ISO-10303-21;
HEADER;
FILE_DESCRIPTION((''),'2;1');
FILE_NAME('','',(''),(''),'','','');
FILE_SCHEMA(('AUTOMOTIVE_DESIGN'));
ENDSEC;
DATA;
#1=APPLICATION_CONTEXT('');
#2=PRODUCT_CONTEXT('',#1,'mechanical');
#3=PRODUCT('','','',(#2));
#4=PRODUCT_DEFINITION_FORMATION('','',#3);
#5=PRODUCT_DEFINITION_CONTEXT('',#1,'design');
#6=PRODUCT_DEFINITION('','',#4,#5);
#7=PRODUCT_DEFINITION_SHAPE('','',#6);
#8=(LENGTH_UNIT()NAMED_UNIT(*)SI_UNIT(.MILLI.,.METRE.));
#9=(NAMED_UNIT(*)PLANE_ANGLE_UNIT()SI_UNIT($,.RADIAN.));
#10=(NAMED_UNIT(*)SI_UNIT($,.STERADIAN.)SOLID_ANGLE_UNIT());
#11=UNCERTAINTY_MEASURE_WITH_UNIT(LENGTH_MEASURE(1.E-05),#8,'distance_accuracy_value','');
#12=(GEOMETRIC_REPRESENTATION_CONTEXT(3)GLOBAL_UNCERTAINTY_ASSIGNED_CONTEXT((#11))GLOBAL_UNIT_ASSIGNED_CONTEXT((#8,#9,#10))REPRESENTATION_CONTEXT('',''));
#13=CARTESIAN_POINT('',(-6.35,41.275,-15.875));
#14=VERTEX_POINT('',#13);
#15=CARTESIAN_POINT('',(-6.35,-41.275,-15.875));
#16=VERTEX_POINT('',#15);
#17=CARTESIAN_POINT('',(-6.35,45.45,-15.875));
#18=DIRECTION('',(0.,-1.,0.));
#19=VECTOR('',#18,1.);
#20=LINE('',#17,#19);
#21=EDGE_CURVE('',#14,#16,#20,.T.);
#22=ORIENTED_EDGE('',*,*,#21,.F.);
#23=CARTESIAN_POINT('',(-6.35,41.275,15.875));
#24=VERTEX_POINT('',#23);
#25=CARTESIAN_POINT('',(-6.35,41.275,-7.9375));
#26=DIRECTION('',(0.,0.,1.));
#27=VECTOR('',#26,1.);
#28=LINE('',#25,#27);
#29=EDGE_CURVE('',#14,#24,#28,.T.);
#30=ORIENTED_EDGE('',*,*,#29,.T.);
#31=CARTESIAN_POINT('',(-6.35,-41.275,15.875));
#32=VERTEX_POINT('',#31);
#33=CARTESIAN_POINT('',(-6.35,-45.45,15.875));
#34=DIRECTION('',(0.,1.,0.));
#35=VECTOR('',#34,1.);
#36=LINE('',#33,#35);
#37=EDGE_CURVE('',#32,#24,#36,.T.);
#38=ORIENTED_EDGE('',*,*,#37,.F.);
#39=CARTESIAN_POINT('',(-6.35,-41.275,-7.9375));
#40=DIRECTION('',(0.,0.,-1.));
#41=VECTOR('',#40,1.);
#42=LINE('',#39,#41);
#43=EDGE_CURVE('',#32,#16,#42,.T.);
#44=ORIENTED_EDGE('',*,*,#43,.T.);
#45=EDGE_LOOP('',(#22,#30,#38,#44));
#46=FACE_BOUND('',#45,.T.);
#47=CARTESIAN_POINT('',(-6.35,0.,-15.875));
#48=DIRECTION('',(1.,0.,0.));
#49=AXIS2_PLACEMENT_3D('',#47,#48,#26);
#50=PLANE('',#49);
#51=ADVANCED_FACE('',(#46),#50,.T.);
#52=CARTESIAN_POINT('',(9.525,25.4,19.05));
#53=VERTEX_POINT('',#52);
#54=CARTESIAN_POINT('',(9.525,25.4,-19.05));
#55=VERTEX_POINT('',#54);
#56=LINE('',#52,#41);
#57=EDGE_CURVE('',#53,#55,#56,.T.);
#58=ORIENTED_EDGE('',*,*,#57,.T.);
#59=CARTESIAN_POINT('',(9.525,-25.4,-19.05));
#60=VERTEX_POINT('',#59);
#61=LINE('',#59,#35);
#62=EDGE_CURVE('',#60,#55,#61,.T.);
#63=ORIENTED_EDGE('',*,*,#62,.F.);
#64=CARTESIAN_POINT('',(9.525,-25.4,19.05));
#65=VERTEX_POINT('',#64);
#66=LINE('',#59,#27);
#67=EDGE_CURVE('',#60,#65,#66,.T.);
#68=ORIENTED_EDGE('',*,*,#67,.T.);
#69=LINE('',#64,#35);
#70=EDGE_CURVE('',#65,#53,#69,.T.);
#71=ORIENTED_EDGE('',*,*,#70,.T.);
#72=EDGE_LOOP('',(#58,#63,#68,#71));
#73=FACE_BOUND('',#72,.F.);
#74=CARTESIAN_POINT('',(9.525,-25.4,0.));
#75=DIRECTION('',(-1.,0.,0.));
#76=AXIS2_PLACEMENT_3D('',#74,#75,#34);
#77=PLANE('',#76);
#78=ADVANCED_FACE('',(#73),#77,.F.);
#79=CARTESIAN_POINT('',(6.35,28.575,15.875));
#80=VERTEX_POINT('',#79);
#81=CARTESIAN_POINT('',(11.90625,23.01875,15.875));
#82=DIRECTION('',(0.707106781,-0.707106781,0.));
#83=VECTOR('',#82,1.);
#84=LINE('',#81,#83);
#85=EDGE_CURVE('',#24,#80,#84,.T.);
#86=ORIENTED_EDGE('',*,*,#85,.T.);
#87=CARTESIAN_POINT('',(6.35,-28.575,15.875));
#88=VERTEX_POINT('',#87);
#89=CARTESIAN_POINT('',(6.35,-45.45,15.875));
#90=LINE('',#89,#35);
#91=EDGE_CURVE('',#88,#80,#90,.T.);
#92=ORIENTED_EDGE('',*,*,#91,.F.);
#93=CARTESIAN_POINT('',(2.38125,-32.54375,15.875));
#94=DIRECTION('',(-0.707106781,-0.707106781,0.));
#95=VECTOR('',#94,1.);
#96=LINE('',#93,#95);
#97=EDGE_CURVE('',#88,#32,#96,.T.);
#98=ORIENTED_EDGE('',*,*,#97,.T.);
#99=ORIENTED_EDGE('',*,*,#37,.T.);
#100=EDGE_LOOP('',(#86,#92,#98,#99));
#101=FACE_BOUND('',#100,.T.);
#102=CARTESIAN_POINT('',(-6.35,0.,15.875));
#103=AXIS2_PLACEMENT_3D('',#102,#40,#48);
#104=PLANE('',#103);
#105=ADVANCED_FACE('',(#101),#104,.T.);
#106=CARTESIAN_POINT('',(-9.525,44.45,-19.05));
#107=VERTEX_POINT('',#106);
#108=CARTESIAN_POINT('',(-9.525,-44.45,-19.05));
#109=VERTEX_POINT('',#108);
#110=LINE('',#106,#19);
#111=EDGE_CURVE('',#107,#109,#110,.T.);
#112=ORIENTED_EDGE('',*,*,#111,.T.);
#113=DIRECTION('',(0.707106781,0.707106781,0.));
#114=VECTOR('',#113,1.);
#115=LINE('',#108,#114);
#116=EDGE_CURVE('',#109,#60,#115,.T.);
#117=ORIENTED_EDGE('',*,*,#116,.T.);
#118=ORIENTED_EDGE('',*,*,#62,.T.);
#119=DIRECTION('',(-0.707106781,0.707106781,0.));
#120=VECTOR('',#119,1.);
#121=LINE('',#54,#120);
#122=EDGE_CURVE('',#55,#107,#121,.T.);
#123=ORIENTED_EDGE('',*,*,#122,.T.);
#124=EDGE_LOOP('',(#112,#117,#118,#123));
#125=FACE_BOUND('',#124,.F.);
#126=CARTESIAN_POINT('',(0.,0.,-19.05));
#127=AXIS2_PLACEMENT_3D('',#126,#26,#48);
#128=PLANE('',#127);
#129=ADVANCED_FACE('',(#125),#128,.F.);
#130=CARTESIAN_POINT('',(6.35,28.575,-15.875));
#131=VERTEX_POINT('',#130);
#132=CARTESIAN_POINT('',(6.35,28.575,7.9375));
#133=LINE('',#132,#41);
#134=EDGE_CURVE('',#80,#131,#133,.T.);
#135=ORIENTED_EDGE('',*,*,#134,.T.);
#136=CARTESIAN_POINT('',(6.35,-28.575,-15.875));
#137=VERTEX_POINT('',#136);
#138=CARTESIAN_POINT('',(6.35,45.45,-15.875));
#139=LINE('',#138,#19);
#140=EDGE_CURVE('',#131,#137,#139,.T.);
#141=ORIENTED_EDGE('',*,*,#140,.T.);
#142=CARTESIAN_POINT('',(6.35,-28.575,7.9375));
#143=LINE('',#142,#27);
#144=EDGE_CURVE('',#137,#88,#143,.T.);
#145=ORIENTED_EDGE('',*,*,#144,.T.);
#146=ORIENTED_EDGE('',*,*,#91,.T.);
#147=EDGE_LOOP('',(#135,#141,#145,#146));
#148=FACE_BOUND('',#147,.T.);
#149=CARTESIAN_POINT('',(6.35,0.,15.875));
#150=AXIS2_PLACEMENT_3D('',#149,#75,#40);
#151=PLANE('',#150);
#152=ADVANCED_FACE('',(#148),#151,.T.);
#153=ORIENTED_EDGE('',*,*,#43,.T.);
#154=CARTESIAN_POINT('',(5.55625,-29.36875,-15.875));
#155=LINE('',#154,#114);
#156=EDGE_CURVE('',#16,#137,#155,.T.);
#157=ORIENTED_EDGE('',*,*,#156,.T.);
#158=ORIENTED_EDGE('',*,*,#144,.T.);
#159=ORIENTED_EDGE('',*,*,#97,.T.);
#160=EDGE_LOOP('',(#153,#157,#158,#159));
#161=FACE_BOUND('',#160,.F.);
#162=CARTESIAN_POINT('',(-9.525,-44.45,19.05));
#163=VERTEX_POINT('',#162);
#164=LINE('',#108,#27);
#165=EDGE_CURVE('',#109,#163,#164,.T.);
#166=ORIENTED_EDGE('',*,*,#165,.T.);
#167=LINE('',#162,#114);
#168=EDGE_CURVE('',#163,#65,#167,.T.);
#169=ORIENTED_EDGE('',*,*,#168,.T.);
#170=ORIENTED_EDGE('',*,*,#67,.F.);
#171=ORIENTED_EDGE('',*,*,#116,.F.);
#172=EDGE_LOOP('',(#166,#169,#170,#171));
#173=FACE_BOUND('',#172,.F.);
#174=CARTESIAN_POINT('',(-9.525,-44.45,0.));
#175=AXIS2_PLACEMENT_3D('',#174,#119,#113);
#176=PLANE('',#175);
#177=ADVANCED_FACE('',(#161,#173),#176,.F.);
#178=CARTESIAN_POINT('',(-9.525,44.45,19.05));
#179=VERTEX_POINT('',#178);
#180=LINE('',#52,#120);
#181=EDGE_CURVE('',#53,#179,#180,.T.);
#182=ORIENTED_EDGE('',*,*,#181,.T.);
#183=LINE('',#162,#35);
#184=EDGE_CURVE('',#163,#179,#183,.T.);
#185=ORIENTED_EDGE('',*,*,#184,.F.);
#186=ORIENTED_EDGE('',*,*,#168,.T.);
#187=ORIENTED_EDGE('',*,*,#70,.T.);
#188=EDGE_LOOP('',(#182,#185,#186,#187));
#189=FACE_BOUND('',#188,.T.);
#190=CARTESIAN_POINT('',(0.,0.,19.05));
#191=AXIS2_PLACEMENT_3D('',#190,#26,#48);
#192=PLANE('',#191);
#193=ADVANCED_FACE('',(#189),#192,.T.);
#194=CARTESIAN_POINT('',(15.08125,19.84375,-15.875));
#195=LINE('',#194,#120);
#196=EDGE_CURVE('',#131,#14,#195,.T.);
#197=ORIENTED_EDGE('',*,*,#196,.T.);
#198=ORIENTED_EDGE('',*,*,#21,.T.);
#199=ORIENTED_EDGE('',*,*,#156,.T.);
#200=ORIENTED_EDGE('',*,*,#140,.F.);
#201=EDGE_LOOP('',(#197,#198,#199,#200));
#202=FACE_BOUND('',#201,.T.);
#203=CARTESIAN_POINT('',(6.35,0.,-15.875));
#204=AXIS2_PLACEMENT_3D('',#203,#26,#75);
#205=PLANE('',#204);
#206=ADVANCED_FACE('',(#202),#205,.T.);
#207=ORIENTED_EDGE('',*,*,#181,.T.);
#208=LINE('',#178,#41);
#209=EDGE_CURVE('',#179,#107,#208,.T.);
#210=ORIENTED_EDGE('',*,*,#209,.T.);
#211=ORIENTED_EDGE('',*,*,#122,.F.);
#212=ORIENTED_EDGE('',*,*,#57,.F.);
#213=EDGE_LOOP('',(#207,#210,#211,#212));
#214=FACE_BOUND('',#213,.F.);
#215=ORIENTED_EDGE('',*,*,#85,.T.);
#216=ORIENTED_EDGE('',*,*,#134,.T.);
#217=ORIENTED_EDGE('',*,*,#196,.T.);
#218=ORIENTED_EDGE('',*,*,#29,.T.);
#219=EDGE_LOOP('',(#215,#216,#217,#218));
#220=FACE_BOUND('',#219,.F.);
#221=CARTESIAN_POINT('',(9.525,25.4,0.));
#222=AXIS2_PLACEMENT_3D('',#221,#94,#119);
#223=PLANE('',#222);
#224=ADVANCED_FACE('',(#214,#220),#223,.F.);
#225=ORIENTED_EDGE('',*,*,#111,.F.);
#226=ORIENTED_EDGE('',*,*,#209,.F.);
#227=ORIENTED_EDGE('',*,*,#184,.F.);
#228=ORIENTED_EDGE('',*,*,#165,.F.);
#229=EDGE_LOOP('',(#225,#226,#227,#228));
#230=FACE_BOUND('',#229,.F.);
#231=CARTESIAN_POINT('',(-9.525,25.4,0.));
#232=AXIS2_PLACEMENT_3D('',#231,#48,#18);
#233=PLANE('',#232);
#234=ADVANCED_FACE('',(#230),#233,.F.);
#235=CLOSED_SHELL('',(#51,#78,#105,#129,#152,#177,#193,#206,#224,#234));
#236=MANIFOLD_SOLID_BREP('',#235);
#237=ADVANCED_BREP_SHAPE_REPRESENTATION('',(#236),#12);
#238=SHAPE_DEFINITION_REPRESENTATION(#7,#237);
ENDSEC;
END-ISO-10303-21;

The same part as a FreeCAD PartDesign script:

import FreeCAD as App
import Part
import Sketcher
from FreeCAD import Vector
Q = App.Units.Quantity

doc = App.newDocument("Part")
body = doc.addObject("PartDesign::Body", "Body")

# Sketch on XY plane
sketch1 = body.newObject("Sketcher::SketchObject", "Sketch")
sketch1.AttachmentSupport = (doc.getObject("XY_Plane"), [""])
sketch1.MapMode = "FlatFace"
sketch1.addGeometry(Part.LineSegment(Vector(-9.525, -44.45, 0), Vector(9.525, -25.4, 0)), False)
sketch1.addGeometry(Part.LineSegment(Vector(9.525, -25.4, 0), Vector(9.525, 25.4, 0)), False)
sketch1.addGeometry(Part.LineSegment(Vector(9.525, 25.4, 0), Vector(-9.525, 44.45, 0)), False)
sketch1.addGeometry(Part.LineSegment(Vector(-9.525, 44.45, 0), Vector(-9.525, -44.45, 0)), False)
sketch1.addConstraint(Sketcher.Constraint("Coincident", 0, 2, 1, 1))
sketch1.addConstraint(Sketcher.Constraint("Coincident", 1, 2, 2, 1))
sketch1.addConstraint(Sketcher.Constraint("Coincident", 2, 2, 3, 1))
sketch1.addConstraint(Sketcher.Constraint("Coincident", 3, 2, 0, 1))
sketch1.addConstraint(Sketcher.Constraint("Vertical", 1))
sketch1.addConstraint(Sketcher.Constraint("Vertical", 3))
sketch1.addConstraint(Sketcher.Constraint("Perpendicular", 0, 2))
sketch1.addConstraint(Sketcher.Constraint("Equal", 0, 2))
sketch1.addConstraint(Sketcher.Constraint("DistanceY", 3, 2, 3, 1, Q("3.5 in")))
sketch1.addConstraint(Sketcher.Constraint("DistanceY", 1, 1, 1, 2, Q("2 in")))
sketch1.addConstraint(Sketcher.Constraint("DistanceY", 0, 2, -1, 1, Q("1 in")))
sketch1.addConstraint(Sketcher.Constraint("DistanceX", -1, 1, 0, 2, Q("0.375 in")))
pad1 = body.newObject("PartDesign::Pad", "Pad")
pad1.Profile = sketch1
pad1.Length = Q("1.5 in")
pad1.Midplane = True

# Sketch on XZ plane
sketch2 = body.newObject("Sketcher::SketchObject", "Sketch001")
sketch2.AttachmentSupport = (doc.getObject("XZ_Plane"), [""])
sketch2.MapMode = "FlatFace"
sketch2.addGeometry(Part.LineSegment(Vector(-6.35, -15.875, 0), Vector(-6.35, 15.875, 0)), False)
sketch2.addGeometry(Part.LineSegment(Vector(-6.35, 15.875, 0), Vector(6.35, 15.875, 0)), False)
sketch2.addGeometry(Part.LineSegment(Vector(6.35, 15.875, 0), Vector(6.35, -15.875, 0)), False)
sketch2.addGeometry(Part.LineSegment(Vector(6.35, -15.875, 0), Vector(-6.35, -15.875, 0)), False)
sketch2.addConstraint(Sketcher.Constraint("Coincident", 0, 2, 1, 1))
sketch2.addConstraint(Sketcher.Constraint("Coincident", 1, 2, 2, 1))
sketch2.addConstraint(Sketcher.Constraint("Coincident", 2, 2, 3, 1))
sketch2.addConstraint(Sketcher.Constraint("Coincident", 3, 2, 0, 1))
sketch2.addConstraint(Sketcher.Constraint("Vertical", 0))
sketch2.addConstraint(Sketcher.Constraint("Horizontal", 1))
sketch2.addConstraint(Sketcher.Constraint("Vertical", 2))
sketch2.addConstraint(Sketcher.Constraint("Horizontal", 3))
sketch2.addConstraint(Sketcher.Constraint("Symmetric", 0, 2, 2, 2, -1, 1))
sketch2.addConstraint(Sketcher.Constraint("DistanceX", 1, 1, 1, 2, Q("0.5 in")))
sketch2.addConstraint(Sketcher.Constraint("DistanceY", 0, 1, 0, 2, Q("1.25 in")))
pocket1 = body.newObject("PartDesign::Pocket", "Pocket")
pocket1.Profile = sketch2
pocket1.Type = "ThroughAll"
pocket1.Midplane = True

doc.recompute()
